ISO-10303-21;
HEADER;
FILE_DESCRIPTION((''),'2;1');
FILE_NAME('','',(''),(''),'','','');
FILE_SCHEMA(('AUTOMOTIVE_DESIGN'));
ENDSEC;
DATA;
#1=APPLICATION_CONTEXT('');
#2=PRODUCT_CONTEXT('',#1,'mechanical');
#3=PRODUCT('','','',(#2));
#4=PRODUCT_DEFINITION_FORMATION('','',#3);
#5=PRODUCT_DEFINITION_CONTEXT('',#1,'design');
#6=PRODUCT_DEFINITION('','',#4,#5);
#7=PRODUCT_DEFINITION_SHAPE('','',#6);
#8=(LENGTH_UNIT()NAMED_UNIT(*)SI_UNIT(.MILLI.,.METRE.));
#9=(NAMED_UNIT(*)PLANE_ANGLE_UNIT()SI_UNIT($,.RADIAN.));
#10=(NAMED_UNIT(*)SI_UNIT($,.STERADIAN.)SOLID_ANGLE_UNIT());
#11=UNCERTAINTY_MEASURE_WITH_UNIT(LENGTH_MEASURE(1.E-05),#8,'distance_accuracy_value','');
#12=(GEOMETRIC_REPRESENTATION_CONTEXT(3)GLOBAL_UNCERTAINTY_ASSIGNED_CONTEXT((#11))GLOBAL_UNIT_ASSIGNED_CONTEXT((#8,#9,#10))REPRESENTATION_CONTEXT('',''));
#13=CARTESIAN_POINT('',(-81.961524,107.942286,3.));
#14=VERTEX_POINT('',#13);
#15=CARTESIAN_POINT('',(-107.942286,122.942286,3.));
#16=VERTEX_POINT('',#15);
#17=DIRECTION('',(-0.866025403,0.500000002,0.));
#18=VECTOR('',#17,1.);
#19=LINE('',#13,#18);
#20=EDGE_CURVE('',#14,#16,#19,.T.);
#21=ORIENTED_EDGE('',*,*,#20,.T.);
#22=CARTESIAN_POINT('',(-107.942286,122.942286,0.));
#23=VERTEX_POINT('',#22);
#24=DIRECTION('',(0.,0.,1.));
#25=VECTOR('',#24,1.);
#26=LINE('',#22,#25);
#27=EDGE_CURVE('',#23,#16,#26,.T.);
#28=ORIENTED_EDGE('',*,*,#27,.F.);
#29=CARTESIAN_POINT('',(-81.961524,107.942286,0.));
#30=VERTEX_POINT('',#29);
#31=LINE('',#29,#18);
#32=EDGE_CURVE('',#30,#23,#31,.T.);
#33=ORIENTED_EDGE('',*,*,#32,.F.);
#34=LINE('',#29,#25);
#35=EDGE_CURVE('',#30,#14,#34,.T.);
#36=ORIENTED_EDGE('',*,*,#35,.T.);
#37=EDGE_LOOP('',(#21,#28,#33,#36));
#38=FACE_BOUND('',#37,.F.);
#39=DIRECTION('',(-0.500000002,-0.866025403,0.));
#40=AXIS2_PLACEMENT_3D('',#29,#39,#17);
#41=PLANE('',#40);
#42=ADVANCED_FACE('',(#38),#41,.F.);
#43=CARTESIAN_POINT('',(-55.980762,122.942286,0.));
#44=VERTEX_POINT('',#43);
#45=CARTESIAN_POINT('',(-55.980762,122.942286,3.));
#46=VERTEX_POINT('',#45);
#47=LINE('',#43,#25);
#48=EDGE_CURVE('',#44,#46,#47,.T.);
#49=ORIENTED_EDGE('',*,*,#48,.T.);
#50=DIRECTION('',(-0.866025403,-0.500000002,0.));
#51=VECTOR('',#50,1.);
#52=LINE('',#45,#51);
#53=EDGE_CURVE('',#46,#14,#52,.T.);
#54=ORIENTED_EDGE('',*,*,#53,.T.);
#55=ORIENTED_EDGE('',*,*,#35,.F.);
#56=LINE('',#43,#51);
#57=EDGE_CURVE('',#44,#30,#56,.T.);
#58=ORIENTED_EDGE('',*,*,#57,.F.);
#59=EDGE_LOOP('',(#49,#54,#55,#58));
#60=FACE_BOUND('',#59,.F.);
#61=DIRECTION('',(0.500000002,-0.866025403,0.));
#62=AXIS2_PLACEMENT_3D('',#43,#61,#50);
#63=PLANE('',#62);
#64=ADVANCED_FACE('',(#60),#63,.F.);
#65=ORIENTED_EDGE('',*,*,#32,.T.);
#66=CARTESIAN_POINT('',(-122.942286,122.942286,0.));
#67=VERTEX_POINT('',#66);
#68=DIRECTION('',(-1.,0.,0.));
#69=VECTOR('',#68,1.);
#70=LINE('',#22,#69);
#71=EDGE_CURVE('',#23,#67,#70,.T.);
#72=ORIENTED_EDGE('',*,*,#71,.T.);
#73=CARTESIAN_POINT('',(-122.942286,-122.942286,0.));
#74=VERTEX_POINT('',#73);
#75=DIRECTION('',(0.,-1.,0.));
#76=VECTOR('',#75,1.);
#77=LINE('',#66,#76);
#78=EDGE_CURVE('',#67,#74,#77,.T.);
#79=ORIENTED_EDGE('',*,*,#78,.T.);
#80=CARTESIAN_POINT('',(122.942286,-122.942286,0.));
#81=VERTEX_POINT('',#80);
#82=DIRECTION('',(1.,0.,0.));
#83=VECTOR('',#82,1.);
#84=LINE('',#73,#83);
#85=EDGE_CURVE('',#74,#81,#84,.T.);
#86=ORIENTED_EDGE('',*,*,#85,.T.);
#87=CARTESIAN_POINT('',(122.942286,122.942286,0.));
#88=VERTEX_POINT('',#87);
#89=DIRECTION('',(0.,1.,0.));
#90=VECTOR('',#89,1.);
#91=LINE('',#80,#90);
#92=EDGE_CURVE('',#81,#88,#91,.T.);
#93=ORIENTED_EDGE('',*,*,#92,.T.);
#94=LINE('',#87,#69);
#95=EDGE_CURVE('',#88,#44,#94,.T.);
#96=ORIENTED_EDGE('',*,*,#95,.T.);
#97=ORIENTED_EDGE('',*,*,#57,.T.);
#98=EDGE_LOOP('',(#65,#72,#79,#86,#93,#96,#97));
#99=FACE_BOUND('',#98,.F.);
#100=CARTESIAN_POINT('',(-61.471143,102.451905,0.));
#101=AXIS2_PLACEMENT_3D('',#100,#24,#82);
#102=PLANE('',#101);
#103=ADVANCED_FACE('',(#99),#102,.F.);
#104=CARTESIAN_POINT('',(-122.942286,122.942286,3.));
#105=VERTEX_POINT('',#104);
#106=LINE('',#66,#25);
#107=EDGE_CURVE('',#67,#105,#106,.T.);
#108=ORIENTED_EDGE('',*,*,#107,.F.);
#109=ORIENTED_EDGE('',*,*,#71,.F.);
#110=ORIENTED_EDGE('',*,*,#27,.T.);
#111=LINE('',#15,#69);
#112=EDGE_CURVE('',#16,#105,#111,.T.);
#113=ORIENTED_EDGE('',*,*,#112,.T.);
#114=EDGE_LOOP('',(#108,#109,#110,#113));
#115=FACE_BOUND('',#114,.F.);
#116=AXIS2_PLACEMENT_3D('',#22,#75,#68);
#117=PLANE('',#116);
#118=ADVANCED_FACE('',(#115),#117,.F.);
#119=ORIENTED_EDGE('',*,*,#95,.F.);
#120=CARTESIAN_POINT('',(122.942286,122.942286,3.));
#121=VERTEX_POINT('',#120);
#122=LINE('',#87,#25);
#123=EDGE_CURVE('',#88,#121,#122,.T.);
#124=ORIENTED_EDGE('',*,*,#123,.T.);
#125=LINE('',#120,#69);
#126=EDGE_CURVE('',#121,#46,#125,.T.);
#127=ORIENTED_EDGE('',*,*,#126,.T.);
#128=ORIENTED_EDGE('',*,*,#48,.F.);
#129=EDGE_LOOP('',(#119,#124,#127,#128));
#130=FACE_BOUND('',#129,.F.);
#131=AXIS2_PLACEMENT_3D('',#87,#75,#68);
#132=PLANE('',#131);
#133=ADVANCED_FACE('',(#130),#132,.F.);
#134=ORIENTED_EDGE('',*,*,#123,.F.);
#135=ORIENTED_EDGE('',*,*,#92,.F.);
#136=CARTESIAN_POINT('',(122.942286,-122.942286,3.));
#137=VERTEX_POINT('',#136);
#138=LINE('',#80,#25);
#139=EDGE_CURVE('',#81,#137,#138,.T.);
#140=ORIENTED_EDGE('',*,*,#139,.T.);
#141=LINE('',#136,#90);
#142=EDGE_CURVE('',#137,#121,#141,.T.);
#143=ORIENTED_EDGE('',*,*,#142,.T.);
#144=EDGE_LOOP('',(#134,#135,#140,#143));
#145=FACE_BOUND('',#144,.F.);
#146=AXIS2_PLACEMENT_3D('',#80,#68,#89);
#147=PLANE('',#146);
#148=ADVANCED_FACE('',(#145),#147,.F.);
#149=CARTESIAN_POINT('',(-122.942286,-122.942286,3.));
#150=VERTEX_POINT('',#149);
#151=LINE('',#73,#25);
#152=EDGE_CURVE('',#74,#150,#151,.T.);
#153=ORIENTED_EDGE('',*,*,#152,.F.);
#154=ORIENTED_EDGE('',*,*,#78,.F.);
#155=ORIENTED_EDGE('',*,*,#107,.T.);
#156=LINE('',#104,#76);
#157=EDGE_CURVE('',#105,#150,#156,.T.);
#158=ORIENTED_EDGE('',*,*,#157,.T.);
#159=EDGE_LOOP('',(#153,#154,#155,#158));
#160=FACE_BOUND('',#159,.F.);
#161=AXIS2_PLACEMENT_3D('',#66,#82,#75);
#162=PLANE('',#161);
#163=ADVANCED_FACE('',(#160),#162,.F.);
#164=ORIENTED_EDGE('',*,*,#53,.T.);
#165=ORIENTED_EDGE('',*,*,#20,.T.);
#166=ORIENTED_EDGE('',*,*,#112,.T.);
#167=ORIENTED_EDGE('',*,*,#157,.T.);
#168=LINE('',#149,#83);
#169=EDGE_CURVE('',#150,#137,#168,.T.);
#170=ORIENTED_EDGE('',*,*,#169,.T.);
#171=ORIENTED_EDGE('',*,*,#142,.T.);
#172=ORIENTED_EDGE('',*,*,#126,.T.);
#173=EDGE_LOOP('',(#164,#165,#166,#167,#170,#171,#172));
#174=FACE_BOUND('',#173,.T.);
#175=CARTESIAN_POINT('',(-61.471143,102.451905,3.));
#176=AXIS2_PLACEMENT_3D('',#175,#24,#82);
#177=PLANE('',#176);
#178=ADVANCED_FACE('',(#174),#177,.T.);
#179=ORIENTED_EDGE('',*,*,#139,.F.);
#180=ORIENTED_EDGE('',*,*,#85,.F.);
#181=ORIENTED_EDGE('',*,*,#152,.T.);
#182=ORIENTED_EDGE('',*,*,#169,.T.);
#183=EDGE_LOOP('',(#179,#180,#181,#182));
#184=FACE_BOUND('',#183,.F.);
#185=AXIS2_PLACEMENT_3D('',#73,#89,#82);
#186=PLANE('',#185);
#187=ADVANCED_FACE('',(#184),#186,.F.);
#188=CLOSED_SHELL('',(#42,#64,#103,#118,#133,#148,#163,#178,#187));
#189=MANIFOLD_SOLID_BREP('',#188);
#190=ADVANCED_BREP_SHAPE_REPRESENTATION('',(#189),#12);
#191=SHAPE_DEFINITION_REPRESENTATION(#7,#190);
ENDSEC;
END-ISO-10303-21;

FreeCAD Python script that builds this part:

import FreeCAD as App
import Part
import Sketcher
from FreeCAD import Vector
Q = App.Units.Quantity


def add_polygon(sketch, points):
    """Adds a closed chain of lines whose ends are joined by coincident constraints."""
    first, n = sketch.GeometryCount, len(points)
    for a, b in zip(points, points[1:] + points[:1]):
        sketch.addGeometry(Part.LineSegment(App.Vector(*a, 0), App.Vector(*b, 0)), False)
    for i in range(n):
        sketch.addConstraint(Sketcher.Constraint("Coincident", first + i, 2, first + (i + 1) % n, 1))

doc = App.newDocument("Part")
body = doc.addObject("PartDesign::Body", "Body")

sketch1 = body.newObject("Sketcher::SketchObject", "Sketch")
sketch1.AttachmentSupport = (doc.getObject("XY_Plane"), [""])
sketch1.MapMode = "FlatFace"
add_polygon(sketch1, [(-123, -123), (123, -123), (123, 123), (-56, 123), (-82, 108), (-108, 123), (-123, 123)])
sketch1.addConstraint([
    Sketcher.Constraint("Horizontal", 0),
    Sketcher.Constraint("Vertical", 1),
    Sketcher.Constraint("Horizontal", 2),
    Sketcher.Constraint("Horizontal", 5),
    Sketcher.Constraint("Vertical", 6),
    Sketcher.Constraint("Symmetric", 0, 2, 5, 2, -1, 1),
    Sketcher.Constraint("Horizontal", 2, 2, 4, 2),
    Sketcher.Constraint("Equal", 0, 1),
    Sketcher.Constraint("Equal", 3, 4),
    Sketcher.Constraint("DistanceX", 5, 2, 5, 1, Q("15 mm")),
    Sketcher.Constraint("Angle", 3, Q("-150 deg")),
    Sketcher.Constraint("Distance", 3, Q("30 mm")),
    Sketcher.Constraint("DistanceX", 0, 1, 0, 2, Q("245.884572 mm")),
])
pad1 = body.newObject("PartDesign::Pad", "Pad")
pad1.Profile = sketch1
pad1.Length = 3

doc.recompute()
